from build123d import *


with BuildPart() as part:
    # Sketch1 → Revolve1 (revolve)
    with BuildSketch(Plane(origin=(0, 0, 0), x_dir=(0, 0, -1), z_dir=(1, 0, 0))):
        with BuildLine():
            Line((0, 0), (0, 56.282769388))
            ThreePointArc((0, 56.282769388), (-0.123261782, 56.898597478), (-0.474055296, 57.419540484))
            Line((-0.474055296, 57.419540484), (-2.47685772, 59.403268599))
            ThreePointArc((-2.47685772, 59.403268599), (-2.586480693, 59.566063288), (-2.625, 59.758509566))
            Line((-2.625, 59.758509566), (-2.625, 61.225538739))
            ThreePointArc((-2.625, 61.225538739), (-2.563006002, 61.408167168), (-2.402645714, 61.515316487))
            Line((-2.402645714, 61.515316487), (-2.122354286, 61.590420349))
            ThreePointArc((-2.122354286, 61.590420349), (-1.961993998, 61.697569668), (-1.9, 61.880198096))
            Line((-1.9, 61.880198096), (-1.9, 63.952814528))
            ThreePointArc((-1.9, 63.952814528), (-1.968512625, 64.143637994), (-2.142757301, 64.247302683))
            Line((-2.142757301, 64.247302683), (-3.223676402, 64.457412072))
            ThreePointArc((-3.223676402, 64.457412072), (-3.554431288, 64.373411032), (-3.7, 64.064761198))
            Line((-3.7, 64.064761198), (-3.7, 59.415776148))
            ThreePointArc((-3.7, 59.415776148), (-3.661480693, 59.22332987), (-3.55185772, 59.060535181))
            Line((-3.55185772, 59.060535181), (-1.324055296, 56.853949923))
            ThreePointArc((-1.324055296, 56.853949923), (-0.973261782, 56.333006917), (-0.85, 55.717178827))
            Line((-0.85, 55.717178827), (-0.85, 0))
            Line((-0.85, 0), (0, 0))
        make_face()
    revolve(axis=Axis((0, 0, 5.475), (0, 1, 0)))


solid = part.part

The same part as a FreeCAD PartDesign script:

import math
import FreeCAD as App
import Part
import Sketcher
from FreeCAD import Vector
Q = App.Units.Quantity

doc = App.newDocument("Part")
params = doc.addObject("Spreadsheet::Sheet", "Params")
for row, (alias, value) in enumerate([
    ("sketch1_radius", "1.6 mm"),
    ("sketch1_radius2", "0.5 mm"),
    ("sketch1_radius3", "0.3 mm"),
    ("sketch1_radius4", "0.4 mm"),
    ("sketch1_height", "0.85 mm"),
    ("revolution_angle", "360 deg"),
], start=1):
    params.set(f"A{row}", alias)
    params.set(f"B{row}", "=" + value)
    params.setAlias(f"B{row}", alias)

body = doc.addObject("PartDesign::Body", "Body")

# Sketch on YZ plane
sketch1 = body.newObject("Sketcher::SketchObject", "Sketch")
sketch1.AttachmentSupport = (doc.getObject("YZ_Plane"), [""])
sketch1.MapMode = "FlatFace"
sketch1.addGeometry([
    Part.LineSegment(Vector(0, 0, 0), Vector(56.28, 0, 0)),  # 0
    Part.ArcOfCircle(Part.Circle(Vector(56.28, 1.6, 0), Vector(0, 0, 1), 1.6), math.radians(-90), math.radians(-45)),  # 1
    Part.LineSegment(Vector(57.42, 0.47, 0), Vector(59.4, 2.48, 0)),  # 2
    Part.ArcOfCircle(Part.Circle(Vector(59.76, 2.13, 0), Vector(0, 0, 1), 0.5), math.radians(90), math.radians(135)),  # 3
    Part.LineSegment(Vector(59.76, 2.62, 0), Vector(61.23, 2.62, 0)),  # 4
    Part.ArcOfCircle(Part.Circle(Vector(61.23, 2.33, 0), Vector(0, 0, 1), 0.3), math.radians(15), math.radians(90)),  # 5
    Part.LineSegment(Vector(61.52, 2.4, 0), Vector(61.59, 2.12, 0)),  # 6
    Part.ArcOfCircle(Part.Circle(Vector(61.88, 2.2, 0), Vector(0, 0, 1), 0.3), math.radians(-165), math.radians(-90)),  # 7
    Part.LineSegment(Vector(61.88, 1.9, 0), Vector(63.95, 1.9, 0)),  # 8
    Part.ArcOfCircle(Part.Circle(Vector(63.95, 2.2, 0), Vector(0, 0, 1), 0.3), math.radians(-90), math.radians(-11)),  # 9
    Part.LineSegment(Vector(64.25, 2.14, 0), Vector(64.46, 3.22, 0)),  # 10
    Part.ArcOfCircle(Part.Circle(Vector(64.06, 3.3, 0), Vector(0, 0, 1), 0.4), math.radians(-11), math.radians(90)),  # 11
    Part.LineSegment(Vector(64.06, 3.7, 0), Vector(59.42, 3.7, 0)),  # 12
    Part.ArcOfCircle(Part.Circle(Vector(59.42, 3.2, 0), Vector(0, 0, 1), 0.5), math.radians(90), math.radians(135)),  # 13
    Part.LineSegment(Vector(59.06, 3.55, 0), Vector(56.85, 1.32, 0)),  # 14
    Part.ArcOfCircle(Part.Circle(Vector(55.72, 2.45, 0), Vector(0, 0, 1), 1.6), math.radians(-90), math.radians(-45)),  # 15
    Part.LineSegment(Vector(55.72, 0.85, 0), Vector(0, 0.85, 0)),  # 16
    Part.LineSegment(Vector(0, 0.85, 0), Vector(0, 0, 0)),  # 17
], False)
sketch1.addGeometry(Part.LineSegment(Vector(0, 5.47, 0), Vector(64.46, 5.47, 0)), True)  # axis
sketch1.addConstraint([
    Sketcher.Constraint("Tangent", 0, 2, 1, 1),
    Sketcher.Constraint("Tangent", 1, 2, 2, 1),
    Sketcher.Constraint("Tangent", 2, 2, 3, 2),
    Sketcher.Constraint("Tangent", 3, 1, 4, 1),
    Sketcher.Constraint("Tangent", 4, 2, 5, 2),
    Sketcher.Constraint("Tangent", 5, 1, 6, 1),
    Sketcher.Constraint("Tangent", 6, 2, 7, 1),
    Sketcher.Constraint("Tangent", 7, 2, 8, 1),
    Sketcher.Constraint("Tangent", 8, 2, 9, 1),
    Sketcher.Constraint("Tangent", 9, 2, 10, 1),
    Sketcher.Constraint("Tangent", 10, 2, 11, 1),
    Sketcher.Constraint("Tangent", 11, 2, 12, 1),
    Sketcher.Constraint("Tangent", 12, 2, 13, 1),
    Sketcher.Constraint("Tangent", 13, 2, 14, 1),
    Sketcher.Constraint("Tangent", 14, 2, 15, 2),
    Sketcher.Constraint("Tangent", 15, 1, 16, 1),
    Sketcher.Constraint("Coincident", 16, 2, 17, 1),
    Sketcher.Constraint("Coincident", 17, 2, 0, 1),
    Sketcher.Constraint("Horizontal", 0),
    Sketcher.Constraint("Horizontal", 4),
    Sketcher.Constraint("Horizontal", 8),
    Sketcher.Constraint("Horizontal", 12),
    Sketcher.Constraint("Horizontal", 16),
    Sketcher.Constraint("Vertical", 17),
    Sketcher.Constraint("Horizontal", 18),
    Sketcher.Constraint("Coincident", 17, 2, -1, 1),
    Sketcher.Constraint("Equal", 5, 7),
    Sketcher.Constraint("Equal", 7, 9),
    Sketcher.Constraint("Equal", 3, 13),
    Sketcher.Constraint("Equal", 1, 15),
    Sketcher.Constraint("PointOnObject", 18, 1, -2),
    Sketcher.Constraint("Parallel", 2, 14),
    Sketcher.Constraint("Vertical", 10, 2, 18, 2),
    Sketcher.Constraint("Radius", 1, Q("1.6 mm")),
    Sketcher.Constraint("Radius", 3, Q("0.5 mm")),
    Sketcher.Constraint("Radius", 5, Q("0.3 mm")),
    Sketcher.Constraint("Radius", 11, Q("0.4 mm")),
    Sketcher.Constraint("Angle", 6, Q("-75 deg")),
    Sketcher.Constraint("Angle", 10, Q("79 deg")),
    Sketcher.Constraint("DistanceY", 7, 3, 13, 3, Q("1 mm")),
    Sketcher.Constraint("DistanceY", 17, 2, 17, 1, Q("0.85 mm")),
    Sketcher.Constraint("DistanceY", -1, 1, 7, 3, Q("2.2 mm")),
    Sketcher.Constraint("DistanceY", -1, 1, 3, 3, Q("2.125 mm")),
    Sketcher.Constraint("DistanceY", -1, 1, 18, 1, Q("5.475 mm")),
    Sketcher.Constraint("DistanceX", 0, 1, 0, 2, Q("56.282769 mm")),
    Sketcher.Constraint("DistanceX", 4, 1, 4, 2, Q("1.467029 mm")),
    Sketcher.Constraint("DistanceX", 16, 2, 16, 1, Q("55.717179 mm")),
    Sketcher.Constraint("DistanceX", -1, 1, 7, 3, Q("61.880198 mm")),
    Sketcher.Constraint("DistanceX", 8, 1, 8, 2, Q("2.072616 mm")),
])
sketch1.setExpression("Constraints[33]", "Params.sketch1_radius")
sketch1.setExpression("Constraints[34]", "Params.sketch1_radius2")
sketch1.setExpression("Constraints[35]", "Params.sketch1_radius3")
sketch1.setExpression("Constraints[36]", "Params.sketch1_radius4")
sketch1.setExpression("Constraints[40]", "Params.sketch1_height")
revolution = body.newObject("PartDesign::Revolution", "Revolution")
revolution.Profile = sketch1
revolution.ReferenceAxis = (sketch1, ["Axis0"])
revolution.setExpression("Angle", "Params.revolution_angle")

doc.recompute()
